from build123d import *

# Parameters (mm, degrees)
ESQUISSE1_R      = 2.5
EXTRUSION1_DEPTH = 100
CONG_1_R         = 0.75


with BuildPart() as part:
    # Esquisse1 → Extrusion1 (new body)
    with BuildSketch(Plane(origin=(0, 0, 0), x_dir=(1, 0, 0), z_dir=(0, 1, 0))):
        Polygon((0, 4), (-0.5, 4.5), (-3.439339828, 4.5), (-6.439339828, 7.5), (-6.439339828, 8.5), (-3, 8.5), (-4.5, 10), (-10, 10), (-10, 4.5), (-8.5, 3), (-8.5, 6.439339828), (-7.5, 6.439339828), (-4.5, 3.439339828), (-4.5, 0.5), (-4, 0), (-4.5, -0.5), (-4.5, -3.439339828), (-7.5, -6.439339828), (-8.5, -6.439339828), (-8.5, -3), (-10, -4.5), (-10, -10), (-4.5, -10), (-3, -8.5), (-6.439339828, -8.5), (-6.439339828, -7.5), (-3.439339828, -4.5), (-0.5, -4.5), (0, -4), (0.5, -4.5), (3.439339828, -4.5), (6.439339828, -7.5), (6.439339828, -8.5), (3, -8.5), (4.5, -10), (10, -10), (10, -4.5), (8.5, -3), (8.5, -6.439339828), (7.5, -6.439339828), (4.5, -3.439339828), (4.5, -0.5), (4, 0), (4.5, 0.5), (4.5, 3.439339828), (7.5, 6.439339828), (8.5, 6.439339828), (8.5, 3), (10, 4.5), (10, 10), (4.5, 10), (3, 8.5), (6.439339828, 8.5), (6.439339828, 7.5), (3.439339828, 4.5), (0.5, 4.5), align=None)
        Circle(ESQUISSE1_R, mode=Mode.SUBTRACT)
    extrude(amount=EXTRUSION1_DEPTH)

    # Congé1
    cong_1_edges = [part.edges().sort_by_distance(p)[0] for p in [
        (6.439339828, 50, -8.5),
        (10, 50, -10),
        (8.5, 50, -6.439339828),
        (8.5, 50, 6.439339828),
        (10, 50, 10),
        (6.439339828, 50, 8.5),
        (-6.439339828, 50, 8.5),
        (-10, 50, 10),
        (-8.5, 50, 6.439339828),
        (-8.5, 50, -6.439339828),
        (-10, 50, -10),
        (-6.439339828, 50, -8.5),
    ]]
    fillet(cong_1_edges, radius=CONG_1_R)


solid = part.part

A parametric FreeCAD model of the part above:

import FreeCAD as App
import Part
import Sketcher
from FreeCAD import Vector


def edges_at(feature, points):
    """Names of the edges that pass closest to the given points."""
    edges = feature.Shape.Edges
    near = lambda p: min(range(len(edges)), key=lambda i: edges[i].distToShape(Part.Vertex(*p))[0])
    return sorted({f"Edge{near(p) + 1}" for p in points})


def add_polygon(sketch, points):
    """Adds a closed chain of lines whose ends are joined by coincident constraints."""
    first, n = sketch.GeometryCount, len(points)
    for a, b in zip(points, points[1:] + points[:1]):
        sketch.addGeometry(Part.LineSegment(App.Vector(*a, 0), App.Vector(*b, 0)), False)
    for i in range(n):
        sketch.addConstraint(Sketcher.Constraint("Coincident", first + i, 2, first + (i + 1) % n, 1))

doc = App.newDocument("Part")
params = doc.addObject("Spreadsheet::Sheet", "Params")
for row, (alias, value) in enumerate([
    ("sketch1_diameter", "5 mm"),
    ("sketch1_width", "1 mm"),
    ("sketch1_width2", "5.5 mm"),
    ("pad1_length", "100 mm"),
    ("fillet_radius", "0.75 mm"),
], start=1):
    params.set(f"A{row}", alias)
    params.set(f"B{row}", "=" + value)
    params.setAlias(f"B{row}", alias)

body = doc.addObject("PartDesign::Body", "Body")

sketch1 = body.newObject("Sketcher::SketchObject", "Sketch")
sketch1.AttachmentSupport = (doc.getObject("XZ_Plane"), [""])
sketch1.MapMode = "FlatFace"
add_polygon(sketch1, [(0, -4), (-0.5, -4.5), (-3.4, -4.5), (-6.4, -7.5), (-6.4, -8.5), (-3, -8.5), (-4.5, -10), (-10, -10), (-10, -4.5), (-8.5, -3), (-8.5, -6.4), (-7.5, -6.4), (-4.5, -3.4), (-4.5, -0.5), (-4, 0), (-4.5, 0.5), (-4.5, 3.4), (-7.5, 6.4), (-8.5, 6.4), (-8.5, 3), (-10, 4.5), (-10, 10), (-4.5, 10), (-3, 8.5), (-6.4, 8.5), (-6.4, 7.5), (-3.4, 4.5), (-0.5, 4.5), (0, 4), (0.5, 4.5), (3.4, 4.5), (6.4, 7.5), (6.4, 8.5), (3, 8.5), (4.5, 10), (10, 10), (10, 4.5), (8.5, 3), (8.5, 6.4), (7.5, 6.4), (4.5, 3.4), (4.5, 0.5), (4, 0), (4.5, -0.5), (4.5, -3.4), (7.5, -6.4), (8.5, -6.4), (8.5, -3), (10, -4.5), (10, -10), (4.5, -10), (3, -8.5), (6.4, -8.5), (6.4, -7.5), (3.4, -4.5), (0.5, -4.5)])
sketch1.addGeometry(Part.Circle(Vector(0, 0, 0), Vector(0, 0, 1), 2.5), False)
sketch1.addConstraint([
    Sketcher.Constraint("Horizontal", 1),
    Sketcher.Constraint("Vertical", 3),
    Sketcher.Constraint("Horizontal", 4),
    Sketcher.Constraint("Horizontal", 6),
    Sketcher.Constraint("Vertical", 7),
    Sketcher.Constraint("Vertical", 9),
    Sketcher.Constraint("Horizontal", 10),
    Sketcher.Constraint("Vertical", 12),
    Sketcher.Constraint("Vertical", 15),
    Sketcher.Constraint("Horizontal", 17),
    Sketcher.Constraint("Vertical", 18),
    Sketcher.Constraint("Vertical", 20),
    Sketcher.Constraint("Horizontal", 21),
    Sketcher.Constraint("Horizontal", 23),
    Sketcher.Constraint("Vertical", 24),
    Sketcher.Constraint("Horizontal", 26),
    Sketcher.Constraint("Horizontal", 29),
    Sketcher.Constraint("Vertical", 31),
    Sketcher.Constraint("Horizontal", 32),
    Sketcher.Constraint("Horizontal", 34),
    Sketcher.Constraint("Vertical", 35),
    Sketcher.Constraint("Vertical", 37),
    Sketcher.Constraint("Horizontal", 38),
    Sketcher.Constraint("Vertical", 40),
    Sketcher.Constraint("Vertical", 43),
    Sketcher.Constraint("Horizontal", 45),
    Sketcher.Constraint("Vertical", 46),
    Sketcher.Constraint("Vertical", 48),
    Sketcher.Constraint("Horizontal", 49),
    Sketcher.Constraint("Horizontal", 51),
    Sketcher.Constraint("Vertical", 52),
    Sketcher.Constraint("Horizontal", 54),
    Sketcher.Constraint("Coincident", 56, 3, -1, 1),
    Sketcher.Constraint("Symmetric", 0, 2, 28, 2, -1, 1),
    Sketcher.Constraint("Symmetric", 2, 2, 30, 2, -1, 1),
    Sketcher.Constraint("Symmetric", 4, 2, 32, 2, -1, 1),
    Sketcher.Constraint("Symmetric", 5, 2, 33, 2, -1, 1),
    Sketcher.Constraint("Symmetric", 7, 2, 35, 2, -1, 1),
    Sketcher.Constraint("Symmetric", 8, 2, 36, 2, -1, 1),
    Sketcher.Constraint("Symmetric", 10, 2, 38, 2, -1, 1),
    Sketcher.Constraint("Symmetric", 11, 2, 39, 2, -1, 1),
    Sketcher.Constraint("Symmetric", 13, 2, 41, 2, -1, 1),
    Sketcher.Constraint("Symmetric", 14, 2, 42, 2, -1, 1),
    Sketcher.Constraint("Symmetric", 16, 2, 44, 2, -1, 1),
    Sketcher.Constraint("Symmetric", 18, 2, 46, 2, -1, 1),
    Sketcher.Constraint("Symmetric", 19, 2, 47, 2, -1, 1),
    Sketcher.Constraint("Symmetric", 21, 2, 49, 2, -1, 1),
    Sketcher.Constraint("Symmetric", 22, 2, 50, 2, -1, 1),
    Sketcher.Constraint("Symmetric", 24, 2, 52, 2, -1, 1),
    Sketcher.Constraint("Symmetric", 25, 2, 53, 2, -1, 1),
    Sketcher.Constraint("Symmetric", 27, 2, 55, 2, -1, 1),
    Sketcher.Constraint("Symmetric", 26, 2, 28, 2, -2),
    Sketcher.Constraint("Symmetric", 24, 2, 30, 2, -2),
    Sketcher.Constraint("Symmetric", 22, 2, 32, 2, -2),
    Sketcher.Constraint("Symmetric", 21, 2, 33, 2, -2),
    Sketcher.Constraint("Symmetric", 19, 2, 35, 2, -2),
    Sketcher.Constraint("Symmetric", 18, 2, 36, 2, -2),
    Sketcher.Constraint("Symmetric", 16, 2, 38, 2, -2),
    Sketcher.Constraint("Symmetric", 15, 2, 39, 2, -2),
    Sketcher.Constraint("PointOnObject", 13, 2, -1),
    Sketcher.Constraint("PointOnObject", 27, 2, -2),
    Sketcher.Constraint("Parallel", 0, 2),
    Sketcher.Constraint("Parallel", 2, 5),
    Sketcher.Constraint("Parallel", 5, 8),
    Sketcher.Constraint("Parallel", 8, 11),
    Sketcher.Constraint("Parallel", 11, 13),
    Sketcher.Constraint("Perpendicular", 13, 14),
    Sketcher.Constraint("Parallel", 14, 16),
    Sketcher.Constraint("Parallel", 22, 25),
    Sketcher.Constraint("Parallel", 28, 30),
    Sketcher.Constraint("Parallel", 39, 41),
    Sketcher.Constraint("Parallel", 42, 44),
    Sketcher.Constraint("Parallel", 53, 55),
    Sketcher.Constraint("Horizontal", 1, 2, 7, 2),
    Sketcher.Constraint("Vertical", 5, 2, 11, 2),
    Sketcher.Constraint("Equal", 45, 3),
    Sketcher.Constraint("Equal", 49, 7),
    Sketcher.Constraint("Equal", 51, 9),
    Sketcher.Constraint("Equal", 54, 12),
    Sketcher.Constraint("Equal", 5, 8),
    Sketcher.Constraint("Equal", 0, 13),
    Sketcher.Constraint("Diameter", 56, 5.0),
    Sketcher.Constraint("DistanceX", 10, 1, 10, 2, 1.0),
    Sketcher.Constraint("DistanceX", 6, 2, 6, 1, 5.5),
    Sketcher.Constraint("DistanceX", 4, 2, -1, 1, 3.0),
    Sketcher.Constraint("DistanceY", 5, 2, -1, 1, 10.0),
    Sketcher.Constraint("DistanceX", 13, 2, -1, 1, 4.0),
    Sketcher.Constraint("DistanceX", 1, 2, 1, 1, 2.93934),
])
sketch1.setExpression("Constraints[137]", "Params.sketch1_diameter")
sketch1.setExpression("Constraints[138]", "Params.sketch1_width")
sketch1.setExpression("Constraints[139]", "Params.sketch1_width2")
pad1 = body.newObject("PartDesign::Pad", "Pad")
pad1.Profile = sketch1
pad1.setExpression("Length", "Params.pad1_length")
pad1.Reversed = True
doc.recompute()

fillet = body.newObject("PartDesign::Fillet", "Fillet")
fillet.Base = (pad1, edges_at(pad1, [
    (6.439, 50, -8.5),
    (10, 50, -10),
    (8.5, 50, -6.439),
    (8.5, 50, 6.439),
    (10, 50, 10),
    (6.439, 50, 8.5),
    (-6.439, 50, 8.5),
    (-10, 50, 10),
    (-8.5, 50, 6.439),
    (-8.5, 50, -6.439),
    (-10, 50, -10),
    (-6.439, 50, -8.5),
]))
fillet.setExpression("Radius", "Params.fillet_radius")

doc.recompute()
